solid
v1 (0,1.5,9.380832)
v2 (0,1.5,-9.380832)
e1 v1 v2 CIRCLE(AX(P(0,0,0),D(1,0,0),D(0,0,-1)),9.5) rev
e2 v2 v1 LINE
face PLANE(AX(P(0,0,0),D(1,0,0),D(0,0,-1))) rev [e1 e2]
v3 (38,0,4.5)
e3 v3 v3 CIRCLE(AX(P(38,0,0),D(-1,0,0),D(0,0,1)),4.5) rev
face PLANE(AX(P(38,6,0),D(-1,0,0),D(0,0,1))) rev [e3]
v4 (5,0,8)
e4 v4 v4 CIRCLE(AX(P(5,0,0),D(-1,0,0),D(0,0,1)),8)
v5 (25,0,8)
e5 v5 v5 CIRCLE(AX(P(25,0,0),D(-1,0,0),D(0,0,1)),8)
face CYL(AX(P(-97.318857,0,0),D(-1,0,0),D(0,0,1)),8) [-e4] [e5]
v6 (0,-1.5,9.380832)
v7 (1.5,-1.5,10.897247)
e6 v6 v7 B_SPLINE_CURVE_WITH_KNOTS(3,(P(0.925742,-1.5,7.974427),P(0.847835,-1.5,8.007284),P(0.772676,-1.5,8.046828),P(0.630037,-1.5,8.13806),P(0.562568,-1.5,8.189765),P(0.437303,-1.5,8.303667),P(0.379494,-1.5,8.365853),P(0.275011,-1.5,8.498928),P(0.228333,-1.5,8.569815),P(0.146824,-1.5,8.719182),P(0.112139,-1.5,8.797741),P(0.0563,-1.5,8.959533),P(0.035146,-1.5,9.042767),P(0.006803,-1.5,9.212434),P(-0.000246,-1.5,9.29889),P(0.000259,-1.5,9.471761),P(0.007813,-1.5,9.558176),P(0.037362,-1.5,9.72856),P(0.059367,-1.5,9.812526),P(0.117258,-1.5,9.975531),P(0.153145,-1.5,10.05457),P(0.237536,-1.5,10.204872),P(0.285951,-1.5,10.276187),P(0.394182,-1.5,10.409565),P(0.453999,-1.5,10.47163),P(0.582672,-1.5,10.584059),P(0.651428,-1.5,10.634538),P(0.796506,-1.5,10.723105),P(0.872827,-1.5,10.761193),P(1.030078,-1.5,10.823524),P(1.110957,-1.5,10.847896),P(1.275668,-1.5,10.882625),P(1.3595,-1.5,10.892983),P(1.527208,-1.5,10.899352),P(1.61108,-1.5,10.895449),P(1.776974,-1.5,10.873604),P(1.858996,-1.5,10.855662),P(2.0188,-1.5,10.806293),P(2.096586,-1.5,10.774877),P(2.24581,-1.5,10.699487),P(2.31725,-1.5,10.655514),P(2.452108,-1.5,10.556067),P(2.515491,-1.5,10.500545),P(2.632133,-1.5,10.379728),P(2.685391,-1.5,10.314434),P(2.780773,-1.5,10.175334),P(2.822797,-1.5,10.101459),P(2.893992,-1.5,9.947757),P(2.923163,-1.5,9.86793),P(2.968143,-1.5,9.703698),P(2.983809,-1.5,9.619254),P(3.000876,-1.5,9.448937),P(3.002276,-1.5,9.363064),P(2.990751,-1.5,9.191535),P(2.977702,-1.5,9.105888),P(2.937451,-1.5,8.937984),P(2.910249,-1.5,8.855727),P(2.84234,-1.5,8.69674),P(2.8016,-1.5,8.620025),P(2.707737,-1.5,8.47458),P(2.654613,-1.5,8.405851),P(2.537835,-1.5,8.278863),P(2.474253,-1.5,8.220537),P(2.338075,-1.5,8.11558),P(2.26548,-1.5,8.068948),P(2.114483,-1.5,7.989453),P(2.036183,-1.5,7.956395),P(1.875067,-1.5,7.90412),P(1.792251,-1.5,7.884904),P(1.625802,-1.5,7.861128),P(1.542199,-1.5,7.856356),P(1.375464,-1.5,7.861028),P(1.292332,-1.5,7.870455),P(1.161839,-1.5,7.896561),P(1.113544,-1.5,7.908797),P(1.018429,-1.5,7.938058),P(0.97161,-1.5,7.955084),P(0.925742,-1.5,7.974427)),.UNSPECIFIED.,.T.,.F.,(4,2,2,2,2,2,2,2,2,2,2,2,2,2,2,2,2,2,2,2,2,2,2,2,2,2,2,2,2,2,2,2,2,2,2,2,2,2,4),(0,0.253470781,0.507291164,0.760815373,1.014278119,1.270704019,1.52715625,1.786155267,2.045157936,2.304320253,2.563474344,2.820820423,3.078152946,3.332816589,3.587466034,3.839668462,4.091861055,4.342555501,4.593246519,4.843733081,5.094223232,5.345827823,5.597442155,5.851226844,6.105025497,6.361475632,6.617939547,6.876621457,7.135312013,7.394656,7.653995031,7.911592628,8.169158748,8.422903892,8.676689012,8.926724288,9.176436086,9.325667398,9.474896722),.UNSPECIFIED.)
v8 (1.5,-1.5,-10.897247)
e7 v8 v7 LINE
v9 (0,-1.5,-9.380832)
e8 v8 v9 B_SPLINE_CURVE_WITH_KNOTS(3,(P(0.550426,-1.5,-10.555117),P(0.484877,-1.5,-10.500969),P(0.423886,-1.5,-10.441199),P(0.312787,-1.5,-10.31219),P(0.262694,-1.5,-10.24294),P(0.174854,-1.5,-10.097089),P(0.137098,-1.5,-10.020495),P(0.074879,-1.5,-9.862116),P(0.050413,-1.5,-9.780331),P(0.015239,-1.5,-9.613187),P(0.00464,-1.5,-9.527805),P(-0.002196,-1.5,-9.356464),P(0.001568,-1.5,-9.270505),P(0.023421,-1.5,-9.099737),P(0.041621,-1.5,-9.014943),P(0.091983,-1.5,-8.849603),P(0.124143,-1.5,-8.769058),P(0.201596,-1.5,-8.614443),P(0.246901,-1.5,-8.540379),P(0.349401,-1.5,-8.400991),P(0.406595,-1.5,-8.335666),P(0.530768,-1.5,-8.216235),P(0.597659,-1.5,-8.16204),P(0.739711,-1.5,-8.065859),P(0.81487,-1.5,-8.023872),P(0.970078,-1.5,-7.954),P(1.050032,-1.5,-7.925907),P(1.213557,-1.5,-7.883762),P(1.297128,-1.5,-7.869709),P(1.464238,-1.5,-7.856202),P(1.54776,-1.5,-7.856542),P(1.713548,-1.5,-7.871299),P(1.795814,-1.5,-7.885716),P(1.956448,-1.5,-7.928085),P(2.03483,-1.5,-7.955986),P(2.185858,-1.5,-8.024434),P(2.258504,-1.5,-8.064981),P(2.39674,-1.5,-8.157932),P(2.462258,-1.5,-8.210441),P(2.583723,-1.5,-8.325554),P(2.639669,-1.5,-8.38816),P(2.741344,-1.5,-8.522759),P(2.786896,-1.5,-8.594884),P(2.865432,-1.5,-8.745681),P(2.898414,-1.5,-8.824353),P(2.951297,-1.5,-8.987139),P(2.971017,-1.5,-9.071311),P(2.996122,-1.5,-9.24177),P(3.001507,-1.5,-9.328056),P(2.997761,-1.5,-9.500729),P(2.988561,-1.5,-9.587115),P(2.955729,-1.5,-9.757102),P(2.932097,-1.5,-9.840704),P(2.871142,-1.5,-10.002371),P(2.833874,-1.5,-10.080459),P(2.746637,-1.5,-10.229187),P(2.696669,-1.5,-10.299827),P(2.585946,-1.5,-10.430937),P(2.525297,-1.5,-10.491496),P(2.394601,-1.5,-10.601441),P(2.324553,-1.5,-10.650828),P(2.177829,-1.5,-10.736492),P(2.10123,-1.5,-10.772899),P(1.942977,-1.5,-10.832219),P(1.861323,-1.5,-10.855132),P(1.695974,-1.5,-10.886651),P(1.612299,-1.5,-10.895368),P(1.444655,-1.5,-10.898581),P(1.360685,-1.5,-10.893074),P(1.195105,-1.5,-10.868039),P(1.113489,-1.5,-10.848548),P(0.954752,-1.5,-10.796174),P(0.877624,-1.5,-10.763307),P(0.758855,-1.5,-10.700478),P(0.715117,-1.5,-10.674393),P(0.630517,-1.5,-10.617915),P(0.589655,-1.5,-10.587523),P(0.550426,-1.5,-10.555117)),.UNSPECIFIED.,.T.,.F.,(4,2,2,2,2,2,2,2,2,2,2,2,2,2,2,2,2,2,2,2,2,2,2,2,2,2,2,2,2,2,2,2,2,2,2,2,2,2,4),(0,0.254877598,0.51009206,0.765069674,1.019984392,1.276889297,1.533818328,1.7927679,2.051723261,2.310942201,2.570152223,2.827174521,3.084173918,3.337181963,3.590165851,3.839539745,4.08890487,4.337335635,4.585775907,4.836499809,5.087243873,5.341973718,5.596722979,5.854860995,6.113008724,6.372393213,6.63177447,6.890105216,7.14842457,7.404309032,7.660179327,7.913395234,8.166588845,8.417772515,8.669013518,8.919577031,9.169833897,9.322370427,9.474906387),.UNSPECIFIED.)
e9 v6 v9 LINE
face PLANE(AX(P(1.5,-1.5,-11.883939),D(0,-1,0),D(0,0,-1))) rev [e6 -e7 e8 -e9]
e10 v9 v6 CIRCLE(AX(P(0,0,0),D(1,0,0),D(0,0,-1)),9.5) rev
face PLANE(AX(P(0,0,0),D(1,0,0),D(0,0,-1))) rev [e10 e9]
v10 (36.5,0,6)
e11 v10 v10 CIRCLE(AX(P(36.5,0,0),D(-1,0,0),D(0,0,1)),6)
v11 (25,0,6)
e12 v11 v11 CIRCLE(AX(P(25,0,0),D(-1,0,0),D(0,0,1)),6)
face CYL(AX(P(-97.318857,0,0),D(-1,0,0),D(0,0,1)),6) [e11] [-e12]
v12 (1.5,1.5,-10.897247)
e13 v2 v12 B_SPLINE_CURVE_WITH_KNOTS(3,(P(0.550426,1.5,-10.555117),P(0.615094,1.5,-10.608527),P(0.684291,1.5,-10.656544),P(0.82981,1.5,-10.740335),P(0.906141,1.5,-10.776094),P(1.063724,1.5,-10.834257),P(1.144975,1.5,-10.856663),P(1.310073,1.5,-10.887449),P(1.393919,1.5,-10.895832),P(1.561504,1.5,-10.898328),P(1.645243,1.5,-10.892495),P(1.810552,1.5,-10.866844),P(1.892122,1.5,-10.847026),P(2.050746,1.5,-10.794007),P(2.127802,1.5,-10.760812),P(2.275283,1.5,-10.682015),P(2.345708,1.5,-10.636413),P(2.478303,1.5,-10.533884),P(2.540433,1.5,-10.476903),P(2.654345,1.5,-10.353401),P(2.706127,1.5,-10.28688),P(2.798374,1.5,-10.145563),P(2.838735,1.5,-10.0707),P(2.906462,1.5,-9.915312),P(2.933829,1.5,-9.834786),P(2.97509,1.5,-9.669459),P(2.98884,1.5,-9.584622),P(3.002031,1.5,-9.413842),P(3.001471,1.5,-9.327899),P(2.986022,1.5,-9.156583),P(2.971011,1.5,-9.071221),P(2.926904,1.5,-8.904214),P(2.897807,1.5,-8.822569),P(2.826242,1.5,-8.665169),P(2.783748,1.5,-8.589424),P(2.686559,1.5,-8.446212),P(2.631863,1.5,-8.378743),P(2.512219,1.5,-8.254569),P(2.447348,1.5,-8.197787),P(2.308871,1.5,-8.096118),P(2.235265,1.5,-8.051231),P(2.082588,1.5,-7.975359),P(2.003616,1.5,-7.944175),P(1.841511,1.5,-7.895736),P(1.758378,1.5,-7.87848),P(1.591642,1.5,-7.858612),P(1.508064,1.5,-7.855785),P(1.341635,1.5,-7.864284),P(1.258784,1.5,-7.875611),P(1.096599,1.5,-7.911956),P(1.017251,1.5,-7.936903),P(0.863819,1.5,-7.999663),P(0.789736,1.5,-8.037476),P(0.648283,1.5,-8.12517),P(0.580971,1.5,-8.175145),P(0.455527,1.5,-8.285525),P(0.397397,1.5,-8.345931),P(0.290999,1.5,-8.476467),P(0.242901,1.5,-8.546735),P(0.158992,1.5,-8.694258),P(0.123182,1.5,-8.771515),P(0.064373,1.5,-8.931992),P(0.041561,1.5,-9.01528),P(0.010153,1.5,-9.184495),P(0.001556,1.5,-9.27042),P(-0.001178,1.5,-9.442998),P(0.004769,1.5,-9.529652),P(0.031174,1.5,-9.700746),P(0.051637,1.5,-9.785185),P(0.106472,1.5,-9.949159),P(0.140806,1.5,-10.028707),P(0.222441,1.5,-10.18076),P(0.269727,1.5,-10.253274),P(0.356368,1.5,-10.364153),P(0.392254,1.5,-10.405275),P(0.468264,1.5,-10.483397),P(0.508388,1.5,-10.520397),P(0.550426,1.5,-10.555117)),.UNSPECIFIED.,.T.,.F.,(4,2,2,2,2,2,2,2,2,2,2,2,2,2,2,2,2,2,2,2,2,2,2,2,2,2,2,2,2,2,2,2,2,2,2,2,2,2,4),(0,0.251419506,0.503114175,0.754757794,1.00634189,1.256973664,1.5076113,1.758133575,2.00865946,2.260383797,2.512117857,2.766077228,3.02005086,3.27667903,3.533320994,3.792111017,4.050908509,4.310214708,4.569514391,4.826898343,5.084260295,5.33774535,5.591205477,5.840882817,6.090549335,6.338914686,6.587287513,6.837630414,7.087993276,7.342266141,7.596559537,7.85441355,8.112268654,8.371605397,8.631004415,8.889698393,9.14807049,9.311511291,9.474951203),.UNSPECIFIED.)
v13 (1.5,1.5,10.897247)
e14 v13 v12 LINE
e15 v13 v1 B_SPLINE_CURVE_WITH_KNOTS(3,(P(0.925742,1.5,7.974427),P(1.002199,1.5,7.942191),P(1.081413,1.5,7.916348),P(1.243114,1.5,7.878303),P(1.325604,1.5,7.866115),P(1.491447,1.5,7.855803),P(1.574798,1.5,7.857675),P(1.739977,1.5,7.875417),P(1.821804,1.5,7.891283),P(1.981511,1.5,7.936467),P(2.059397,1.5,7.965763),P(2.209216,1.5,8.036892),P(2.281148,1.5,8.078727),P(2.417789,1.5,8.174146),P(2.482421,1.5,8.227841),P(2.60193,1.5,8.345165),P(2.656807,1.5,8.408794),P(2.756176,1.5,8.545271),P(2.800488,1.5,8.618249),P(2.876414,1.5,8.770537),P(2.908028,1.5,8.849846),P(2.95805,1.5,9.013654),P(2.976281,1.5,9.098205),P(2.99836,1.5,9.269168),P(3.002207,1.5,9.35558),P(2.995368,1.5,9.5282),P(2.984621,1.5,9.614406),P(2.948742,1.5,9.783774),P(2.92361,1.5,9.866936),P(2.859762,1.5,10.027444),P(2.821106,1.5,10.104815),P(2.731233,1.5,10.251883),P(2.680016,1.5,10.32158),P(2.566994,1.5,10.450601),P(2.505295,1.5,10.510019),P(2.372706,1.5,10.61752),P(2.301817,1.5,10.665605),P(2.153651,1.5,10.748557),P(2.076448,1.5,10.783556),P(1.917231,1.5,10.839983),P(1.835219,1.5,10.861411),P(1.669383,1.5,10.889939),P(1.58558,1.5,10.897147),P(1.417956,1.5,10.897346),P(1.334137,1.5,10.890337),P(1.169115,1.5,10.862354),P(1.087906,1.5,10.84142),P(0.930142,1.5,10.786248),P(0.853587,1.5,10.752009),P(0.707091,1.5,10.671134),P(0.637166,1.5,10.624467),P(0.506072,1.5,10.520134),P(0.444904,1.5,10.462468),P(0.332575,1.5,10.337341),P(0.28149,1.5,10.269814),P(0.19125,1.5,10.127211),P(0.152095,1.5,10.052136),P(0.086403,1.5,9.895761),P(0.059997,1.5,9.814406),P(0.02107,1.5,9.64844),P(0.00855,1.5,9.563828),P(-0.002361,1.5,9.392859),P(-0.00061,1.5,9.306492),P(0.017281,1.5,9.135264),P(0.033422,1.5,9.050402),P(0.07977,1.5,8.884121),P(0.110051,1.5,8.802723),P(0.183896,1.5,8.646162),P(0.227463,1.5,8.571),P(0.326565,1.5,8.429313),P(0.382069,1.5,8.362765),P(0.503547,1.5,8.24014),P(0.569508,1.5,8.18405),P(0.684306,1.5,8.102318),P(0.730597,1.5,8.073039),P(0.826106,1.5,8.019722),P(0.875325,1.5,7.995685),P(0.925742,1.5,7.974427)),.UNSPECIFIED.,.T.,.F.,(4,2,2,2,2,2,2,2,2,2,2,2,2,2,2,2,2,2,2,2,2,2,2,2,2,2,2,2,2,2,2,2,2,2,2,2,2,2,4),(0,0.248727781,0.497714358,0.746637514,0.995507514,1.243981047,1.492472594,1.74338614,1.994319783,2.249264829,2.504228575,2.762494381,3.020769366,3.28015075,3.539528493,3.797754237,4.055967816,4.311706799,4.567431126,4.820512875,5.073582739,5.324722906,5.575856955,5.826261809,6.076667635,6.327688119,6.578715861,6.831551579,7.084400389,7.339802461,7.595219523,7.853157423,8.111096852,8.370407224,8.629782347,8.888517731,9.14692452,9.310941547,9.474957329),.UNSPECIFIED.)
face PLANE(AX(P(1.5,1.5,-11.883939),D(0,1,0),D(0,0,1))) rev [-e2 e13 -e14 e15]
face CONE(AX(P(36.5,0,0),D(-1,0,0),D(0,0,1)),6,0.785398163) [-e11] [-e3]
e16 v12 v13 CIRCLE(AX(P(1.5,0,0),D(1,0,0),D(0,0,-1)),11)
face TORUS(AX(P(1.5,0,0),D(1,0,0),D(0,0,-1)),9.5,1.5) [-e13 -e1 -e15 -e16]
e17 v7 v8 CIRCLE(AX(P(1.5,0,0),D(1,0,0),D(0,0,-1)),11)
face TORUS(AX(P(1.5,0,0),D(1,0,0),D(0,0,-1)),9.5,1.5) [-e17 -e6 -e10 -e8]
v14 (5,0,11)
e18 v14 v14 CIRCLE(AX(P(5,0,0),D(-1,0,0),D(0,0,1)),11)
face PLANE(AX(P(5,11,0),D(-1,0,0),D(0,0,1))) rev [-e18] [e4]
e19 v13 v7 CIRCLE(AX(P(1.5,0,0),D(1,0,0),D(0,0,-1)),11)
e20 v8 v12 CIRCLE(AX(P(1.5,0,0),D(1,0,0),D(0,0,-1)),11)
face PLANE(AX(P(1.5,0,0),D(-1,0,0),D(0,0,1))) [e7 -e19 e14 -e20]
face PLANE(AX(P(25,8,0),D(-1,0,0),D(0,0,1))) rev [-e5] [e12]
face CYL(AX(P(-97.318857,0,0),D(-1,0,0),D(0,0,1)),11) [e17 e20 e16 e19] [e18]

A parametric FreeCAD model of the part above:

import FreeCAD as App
import Part
import Sketcher
from FreeCAD import Vector


def edges_at(feature, points):
    """Names of the edges that pass closest to the given points."""
    edges = feature.Shape.Edges
    near = lambda p: min(range(len(edges)), key=lambda i: edges[i].distToShape(Part.Vertex(*p))[0])
    return sorted({f"Edge{near(p) + 1}" for p in points})

doc = App.newDocument("Part")
body = doc.addObject("PartDesign::Body", "Body")

sketch1 = body.newObject("Sketcher::SketchObject", "Sketch")
sketch1.AttachmentSupport = (doc.getObject("XY_Plane"), [""])
sketch1.MapMode = "FlatFace"
sketch1.addGeometry(Part.LineSegment(Vector(0, 11, 0), Vector(0, 0, 0)), False)
sketch1.addGeometry(Part.LineSegment(Vector(0, 0, 0), Vector(38, 0, 0)), False)
sketch1.addGeometry(Part.LineSegment(Vector(38, 0, 0), Vector(38, 6, 0)), False)
sketch1.addGeometry(Part.LineSegment(Vector(38, 6, 0), Vector(25, 6, 0)), False)
sketch1.addGeometry(Part.LineSegment(Vector(25, 6, 0), Vector(25, 8, 0)), False)
sketch1.addGeometry(Part.LineSegment(Vector(25, 8, 0), Vector(5, 8, 0)), False)
sketch1.addGeometry(Part.LineSegment(Vector(5, 8, 0), Vector(5, 11, 0)), False)
sketch1.addGeometry(Part.LineSegment(Vector(5, 11, 0), Vector(0, 11, 0)), False)
sketch1.addConstraint(Sketcher.Constraint("Coincident", 0, 2, 1, 1))
sketch1.addConstraint(Sketcher.Constraint("Coincident", 1, 2, 2, 1))
sketch1.addConstraint(Sketcher.Constraint("Coincident", 2, 2, 3, 1))
sketch1.addConstraint(Sketcher.Constraint("Coincident", 3, 2, 4, 1))
sketch1.addConstraint(Sketcher.Constraint("Coincident", 4, 2, 5, 1))
sketch1.addConstraint(Sketcher.Constraint("Coincident", 5, 2, 6, 1))
sketch1.addConstraint(Sketcher.Constraint("Coincident", 6, 2, 7, 1))
sketch1.addConstraint(Sketcher.Constraint("Coincident", 7, 2, 0, 1))
sketch1.addConstraint(Sketcher.Constraint("Vertical", 0))
sketch1.addConstraint(Sketcher.Constraint("Horizontal", 1))
sketch1.addConstraint(Sketcher.Constraint("Vertical", 2))
sketch1.addConstraint(Sketcher.Constraint("Horizontal", 3))
sketch1.addConstraint(Sketcher.Constraint("Vertical", 4))
sketch1.addConstraint(Sketcher.Constraint("Horizontal", 5))
sketch1.addConstraint(Sketcher.Constraint("Vertical", 6))
sketch1.addConstraint(Sketcher.Constraint("Horizontal", 7))
sketch1.addConstraint(Sketcher.Constraint("Coincident", 0, 2, -1, 1))
sketch1.addConstraint(Sketcher.Constraint("DistanceX", 1, 1, 1, 2, 38.0))
sketch1.addConstraint(Sketcher.Constraint("DistanceX", 3, 2, 3, 1, 13.0))
sketch1.addConstraint(Sketcher.Constraint("DistanceX", 5, 2, 5, 1, 20.0))
sketch1.addConstraint(Sketcher.Constraint("DistanceY", 0, 2, 0, 1, 11.0))
sketch1.addConstraint(Sketcher.Constraint("DistanceY", 2, 1, 2, 2, 6.0))
sketch1.addConstraint(Sketcher.Constraint("DistanceY", 4, 1, 4, 2, 2.0))
revolution = body.newObject("PartDesign::Revolution", "Revolution")
revolution.Profile = sketch1
revolution.ReferenceAxis = (sketch1, ["H_Axis"])
revolution.Angle = 360
doc.recompute()

chamfer = body.newObject("PartDesign::Chamfer", "Chamfer")
chamfer.Base = (revolution, edges_at(revolution, [(38, -6, 0)]))
chamfer.Size = 1.5
doc.recompute()

fillet = body.newObject("PartDesign::Fillet", "Fillet")
fillet.Base = (chamfer, edges_at(chamfer, [(0, -11, 0)]))
fillet.Radius = 1.5

sketch2 = body.newObject("Sketcher::SketchObject", "Sketch001")
sketch2.AttachmentSupport = (doc.getObject("YZ_Plane"), [""])
sketch2.MapMode = "FlatFace"
sketch2.addGeometry(Part.LineSegment(Vector(1.5, -11.9, 0), Vector(-1.5, -11.9, 0)), False)
sketch2.addGeometry(Part.LineSegment(Vector(-1.5, -11.9, 0), Vector(-1.5, 11.9, 0)), False)
sketch2.addGeometry(Part.LineSegment(Vector(-1.5, 11.9, 0), Vector(1.5, 11.9, 0)), False)
sketch2.addGeometry(Part.LineSegment(Vector(1.5, 11.9, 0), Vector(1.5, -11.9, 0)), False)
sketch2.addConstraint(Sketcher.Constraint("Coincident", 0, 2, 1, 1))
sketch2.addConstraint(Sketcher.Constraint("Coincident", 1, 2, 2, 1))
sketch2.addConstraint(Sketcher.Constraint("Coincident", 2, 2, 3, 1))
sketch2.addConstraint(Sketcher.Constraint("Coincident", 3, 2, 0, 1))
sketch2.addConstraint(Sketcher.Constraint("Horizontal", 0))
sketch2.addConstraint(Sketcher.Constraint("Vertical", 1))
sketch2.addConstraint(Sketcher.Constraint("Horizontal", 2))
sketch2.addConstraint(Sketcher.Constraint("Vertical", 3))
sketch2.addConstraint(Sketcher.Constraint("Symmetric", 0, 2, 2, 2, -1, 1))
sketch2.addConstraint(Sketcher.Constraint("DistanceX", 0, 2, 0, 1, 3.0))
sketch2.addConstraint(Sketcher.Constraint("DistanceY", 1, 1, 1, 2, 23.767877))
pocket1 = body.newObject("PartDesign::Pocket", "Pocket")
pocket1.Profile = sketch2
pocket1.Length = 1.5
pocket1.Reversed = True

doc.recompute()
